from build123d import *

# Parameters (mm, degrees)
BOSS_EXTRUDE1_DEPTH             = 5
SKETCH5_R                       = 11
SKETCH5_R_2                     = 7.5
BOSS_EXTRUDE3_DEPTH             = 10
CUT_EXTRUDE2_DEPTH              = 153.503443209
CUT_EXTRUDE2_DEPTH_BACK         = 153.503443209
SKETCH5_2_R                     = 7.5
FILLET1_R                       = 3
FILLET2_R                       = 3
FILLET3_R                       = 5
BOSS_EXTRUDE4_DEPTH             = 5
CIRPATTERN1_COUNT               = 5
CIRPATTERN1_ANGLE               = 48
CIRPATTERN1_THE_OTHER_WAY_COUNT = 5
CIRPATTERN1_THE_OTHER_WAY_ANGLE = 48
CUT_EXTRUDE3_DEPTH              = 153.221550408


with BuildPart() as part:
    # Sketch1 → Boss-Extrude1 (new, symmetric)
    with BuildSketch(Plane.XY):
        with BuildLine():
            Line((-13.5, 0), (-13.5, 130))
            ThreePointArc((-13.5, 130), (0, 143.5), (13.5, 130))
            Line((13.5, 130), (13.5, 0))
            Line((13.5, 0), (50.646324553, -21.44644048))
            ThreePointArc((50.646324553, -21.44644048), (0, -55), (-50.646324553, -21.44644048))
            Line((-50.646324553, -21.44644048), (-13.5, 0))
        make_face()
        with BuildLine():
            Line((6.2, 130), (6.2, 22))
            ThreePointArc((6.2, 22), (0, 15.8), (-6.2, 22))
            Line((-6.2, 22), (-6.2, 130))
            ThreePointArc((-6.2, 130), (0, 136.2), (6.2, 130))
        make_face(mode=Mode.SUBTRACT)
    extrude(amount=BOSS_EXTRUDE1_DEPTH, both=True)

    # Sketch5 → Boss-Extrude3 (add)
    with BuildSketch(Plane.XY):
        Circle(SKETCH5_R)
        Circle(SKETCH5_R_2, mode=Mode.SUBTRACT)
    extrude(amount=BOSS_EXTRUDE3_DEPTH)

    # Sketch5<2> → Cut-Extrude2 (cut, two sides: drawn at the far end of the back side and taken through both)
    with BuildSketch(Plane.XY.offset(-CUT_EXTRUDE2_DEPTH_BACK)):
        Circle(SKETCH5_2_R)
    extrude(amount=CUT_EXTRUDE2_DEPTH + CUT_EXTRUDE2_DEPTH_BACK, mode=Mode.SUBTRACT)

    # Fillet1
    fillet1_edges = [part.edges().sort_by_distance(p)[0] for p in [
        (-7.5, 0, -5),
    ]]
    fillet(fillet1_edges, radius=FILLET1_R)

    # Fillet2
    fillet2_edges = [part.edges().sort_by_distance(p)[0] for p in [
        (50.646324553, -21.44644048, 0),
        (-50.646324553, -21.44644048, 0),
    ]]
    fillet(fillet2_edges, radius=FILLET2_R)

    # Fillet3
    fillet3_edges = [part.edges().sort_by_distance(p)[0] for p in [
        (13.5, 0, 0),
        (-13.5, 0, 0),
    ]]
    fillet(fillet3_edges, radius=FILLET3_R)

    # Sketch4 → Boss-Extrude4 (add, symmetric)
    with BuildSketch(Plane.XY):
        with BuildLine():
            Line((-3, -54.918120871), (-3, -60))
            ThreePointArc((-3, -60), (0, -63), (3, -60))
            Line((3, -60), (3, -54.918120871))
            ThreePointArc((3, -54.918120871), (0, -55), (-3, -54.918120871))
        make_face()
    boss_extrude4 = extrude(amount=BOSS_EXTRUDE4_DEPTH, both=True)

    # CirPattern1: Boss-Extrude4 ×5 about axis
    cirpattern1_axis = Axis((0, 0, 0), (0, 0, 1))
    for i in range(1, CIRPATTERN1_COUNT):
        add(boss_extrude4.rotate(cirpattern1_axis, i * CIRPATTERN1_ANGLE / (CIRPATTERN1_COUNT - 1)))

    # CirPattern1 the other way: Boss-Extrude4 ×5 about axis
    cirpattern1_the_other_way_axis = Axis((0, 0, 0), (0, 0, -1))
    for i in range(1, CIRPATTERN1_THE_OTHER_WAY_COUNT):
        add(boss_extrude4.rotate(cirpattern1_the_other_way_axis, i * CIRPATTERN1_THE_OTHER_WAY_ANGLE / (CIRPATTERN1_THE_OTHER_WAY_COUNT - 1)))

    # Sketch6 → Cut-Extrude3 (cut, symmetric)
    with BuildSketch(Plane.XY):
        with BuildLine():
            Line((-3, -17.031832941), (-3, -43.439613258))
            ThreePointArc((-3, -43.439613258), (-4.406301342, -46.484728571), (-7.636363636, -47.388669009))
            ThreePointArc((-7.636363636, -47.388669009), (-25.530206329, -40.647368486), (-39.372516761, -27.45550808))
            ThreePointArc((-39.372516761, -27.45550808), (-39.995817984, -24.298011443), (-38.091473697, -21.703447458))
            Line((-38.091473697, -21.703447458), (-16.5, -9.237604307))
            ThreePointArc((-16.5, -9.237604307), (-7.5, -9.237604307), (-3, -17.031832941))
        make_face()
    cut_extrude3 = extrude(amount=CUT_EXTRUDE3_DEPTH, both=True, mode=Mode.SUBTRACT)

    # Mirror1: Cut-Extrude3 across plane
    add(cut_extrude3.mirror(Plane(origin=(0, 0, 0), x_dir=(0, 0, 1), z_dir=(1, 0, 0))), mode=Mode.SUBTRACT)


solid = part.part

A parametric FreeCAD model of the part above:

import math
import FreeCAD as App
import Part
import Sketcher
Q = App.Units.Quantity


def edges_at(feature, points):
    """Names of the edges that pass closest to the given points."""
    edges = feature.Shape.Edges
    near = lambda p: min(range(len(edges)), key=lambda i: edges[i].distToShape(Part.Vertex(*p))[0])
    return sorted({f"Edge{near(p) + 1}" for p in points})

doc = App.newDocument("Part")
body = doc.addObject("PartDesign::Body", "Body")

sketch1 = body.newObject("Sketcher::SketchObject", "Sketch")
sketch1.AttachmentSupport = (doc.getObject("XY_Plane"), [""])
sketch1.MapMode = "FlatFace"
sketch1.addGeometry([
    Part.LineSegment(App.Vector(-14, 130, 0), App.Vector(-14, 0, 0)),
    Part.LineSegment(App.Vector(-14, 0, 0), App.Vector(-51, -21, 0)),
    Part.ArcOfCircle(Part.Circle(App.Vector(0, 0, 0), App.Vector(0, 0, 1), 55), math.radians(-157), math.radians(-23)),
    Part.LineSegment(App.Vector(51, -21, 0), App.Vector(14, 0, 0)),
    Part.LineSegment(App.Vector(14, 0, 0), App.Vector(14, 130, 0)),
    Part.ArcOfCircle(Part.Circle(App.Vector(0, 130, 0), App.Vector(0, 0, 1), 14), math.radians(0), math.radians(180)),
    Part.LineSegment(App.Vector(6, 130, 0), App.Vector(6, 22, 0)),
    Part.ArcOfCircle(Part.Circle(App.Vector(0, 22, 0), App.Vector(0, 0, 1), 6), math.radians(180), math.radians(360)),
    Part.LineSegment(App.Vector(-6, 22, 0), App.Vector(-6, 130, 0)),
    Part.ArcOfCircle(Part.Circle(App.Vector(0, 130, 0), App.Vector(0, 0, 1), 6), math.radians(0), math.radians(180)),
], False)
sketch1.addConstraint([
    Sketcher.Constraint("Coincident", 0, 2, 1, 1),
    Sketcher.Constraint("Coincident", 1, 2, 2, 1),
    Sketcher.Constraint("Coincident", 2, 2, 3, 1),
    Sketcher.Constraint("Coincident", 3, 2, 4, 1),
    Sketcher.Constraint("Tangent", 4, 2, 5, 1),
    Sketcher.Constraint("Tangent", 5, 2, 0, 1),
    Sketcher.Constraint("Tangent", 6, 2, 7, 2),
    Sketcher.Constraint("Tangent", 7, 1, 8, 1),
    Sketcher.Constraint("Tangent", 8, 2, 9, 2),
    Sketcher.Constraint("Tangent", 9, 1, 6, 1),
    Sketcher.Constraint("Vertical", 0),
    Sketcher.Constraint("Vertical", 4),
    Sketcher.Constraint("Vertical", 6),
    Sketcher.Constraint("Vertical", 8),
    Sketcher.Constraint("Coincident", 2, 3, -1, 1),
    Sketcher.Constraint("Coincident", 9, 3, 5, 3),
    Sketcher.Constraint("Symmetric", 0, 2, 3, 2, -1, 1),
    Sketcher.Constraint("PointOnObject", 0, 2, -1),
    Sketcher.Constraint("Horizontal", 1, 2, 2, 2),
    Sketcher.Constraint("Radius", 2, 55.0),
    Sketcher.Constraint("Radius", 5, 13.5),
    Sketcher.Constraint("Radius", 7, 6.2),
    Sketcher.Constraint("DistanceY", 0, 2, 0, 1, 130.0),
    Sketcher.Constraint("DistanceY", 6, 2, 6, 1, 108.0),
    Sketcher.Constraint("Angle", 1, Q("-150 deg")),
])
pad1 = body.newObject("PartDesign::Pad", "Pad")
pad1.Profile = sketch1
pad1.Length = 10
pad1.Midplane = True

sketch2 = body.newObject("Sketcher::SketchObject", "Sketch001")
sketch2.AttachmentSupport = (doc.getObject("XY_Plane"), [""])
sketch2.MapMode = "FlatFace"
sketch2.addGeometry([
    Part.Circle(App.Vector(0, 0, 0), App.Vector(0, 0, 1), 11),
    Part.Circle(App.Vector(0, 0, 0), App.Vector(0, 0, 1), 8),
], False)
sketch2.addConstraint([
    Sketcher.Constraint("Coincident", 0, 3, -1, 1),
    Sketcher.Constraint("Coincident", 1, 3, -1, 1),
    Sketcher.Constraint("Diameter", 0, 22.0),
    Sketcher.Constraint("Diameter", 1, 15.0),
])
pad2 = body.newObject("PartDesign::Pad", "Pad001")
pad2.Profile = sketch2
pad2.Length = 10

sketch3 = body.newObject("Sketcher::SketchObject", "Sketch002")
sketch3.AttachmentSupport = (doc.getObject("XY_Plane"), [""])
sketch3.MapMode = "FlatFace"
sketch3.addGeometry(Part.Circle(App.Vector(0, 0, 0), App.Vector(0, 0, 1), 8), False)
sketch3.addConstraint([
    Sketcher.Constraint("Coincident", 0, 3, -1, 1),
    Sketcher.Constraint("Diameter", 0, 15.0),
])
pocket1 = body.newObject("PartDesign::Pocket", "Pocket")
pocket1.Profile = sketch3
pocket1.Type = "ThroughAll"
pocket1.Midplane = True
doc.recompute()

fillet = body.newObject("PartDesign::Fillet", "Fillet")
fillet.Base = (pocket1, edges_at(pocket1, [(-7.5, 0, -5)]))
fillet.Radius = 3
doc.recompute()

fillet2 = body.newObject("PartDesign::Fillet", "Fillet001")
fillet2.Base = (fillet, edges_at(fillet, [(50.646, -21.446, 0), (-50.646, -21.446, 0)]))
fillet2.Radius = 3
doc.recompute()

fillet3 = body.newObject("PartDesign::Fillet", "Fillet002")
fillet3.Base = (fillet2, edges_at(fillet2, [(13.5, 0, 0), (-13.5, 0, 0)]))
fillet3.Radius = 5

sketch4 = body.newObject("Sketcher::SketchObject", "Sketch003")
sketch4.AttachmentSupport = (doc.getObject("XY_Plane"), [""])
sketch4.MapMode = "FlatFace"
sketch4.addGeometry([
    Part.LineSegment(App.Vector(-3, -54.9, 0), App.Vector(-3, -60, 0)),
    Part.ArcOfCircle(Part.Circle(App.Vector(0, -60, 0), App.Vector(0, 0, 1), 3), math.radians(180), math.radians(360)),
    Part.LineSegment(App.Vector(3, -60, 0), App.Vector(3, -54.9, 0)),
    Part.ArcOfCircle(Part.Circle(App.Vector(0, 0, 0), App.Vector(0, 0, 1), 55), math.radians(-93.13), math.radians(-86.87)),
], False)
sketch4.addConstraint([
    Sketcher.Constraint("Tangent", 0, 2, 1, 1),
    Sketcher.Constraint("Tangent", 1, 2, 2, 1),
    Sketcher.Constraint("Coincident", 2, 2, 3, 2),
    Sketcher.Constraint("Coincident", 3, 1, 0, 1),
    Sketcher.Constraint("Vertical", 0),
    Sketcher.Constraint("Vertical", 2),
    Sketcher.Constraint("Coincident", 3, 3, -1, 1),
    Sketcher.Constraint("PointOnObject", 1, 3, -2),
    Sketcher.Constraint("Radius", 1, 3.0),
    Sketcher.Constraint("Radius", 3, 55.0),
    Sketcher.Constraint("DistanceY", 1, 3, -1, 1, 60.0),
])
pad3 = body.newObject("PartDesign::Pad", "Pad002")
pad3.Profile = sketch4
pad3.Length = 10
pad3.Midplane = True
doc.recompute()

polarpattern = body.newObject("PartDesign::PolarPattern", "PolarPattern")
polarpattern.Originals = [pad3]
polarpattern.Axis = (doc.getObject("Z_Axis"), [""])
polarpattern.Angle = 48
polarpattern.Occurrences = 5
body.Tip = polarpattern
doc.recompute()

polarpattern2 = body.newObject("PartDesign::PolarPattern", "PolarPattern001")
polarpattern2.Originals = [pad3]
polarpattern2.Axis = (doc.getObject("Z_Axis"), [""])
polarpattern2.Angle = 48
polarpattern2.Occurrences = 5
polarpattern2.Reversed = True
body.Tip = polarpattern2

sketch5 = body.newObject("Sketcher::SketchObject", "Sketch004")
sketch5.AttachmentSupport = (doc.getObject("XY_Plane"), [""])
sketch5.MapMode = "FlatFace"
sketch5.addGeometry([
    Part.LineSegment(App.Vector(-3, -43.4, 0), App.Vector(-3, -17, 0)),
    Part.ArcOfCircle(Part.Circle(App.Vector(-12, -17, 0), App.Vector(0, 0, 1), 9), math.radians(0), math.radians(120)),
    Part.LineSegment(App.Vector(-16.5, -9.2, 0), App.Vector(-38.1, -21.7, 0)),
    Part.ArcOfCircle(Part.Circle(App.Vector(-36.1, -25.2, 0), App.Vector(0, 0, 1), 4), math.radians(120), math.radians(215)),
    Part.ArcOfCircle(Part.Circle(App.Vector(0, 0, 0), App.Vector(0, 0, 1), 48), math.radians(-145), math.radians(-99)),
    Part.ArcOfCircle(Part.Circle(App.Vector(-7, -43.4, 0), App.Vector(0, 0, 1), 4), math.radians(-99), math.radians(0)),
], False)
sketch5.addConstraint([
    Sketcher.Constraint("Tangent", 0, 2, 1, 1),
    Sketcher.Constraint("Tangent", 1, 2, 2, 1),
    Sketcher.Constraint("Tangent", 2, 2, 3, 1),
    Sketcher.Constraint("Tangent", 3, 2, 4, 1),
    Sketcher.Constraint("Tangent", 4, 2, 5, 1),
    Sketcher.Constraint("Tangent", 5, 2, 0, 1),
    Sketcher.Constraint("Vertical", 0),
    Sketcher.Constraint("Coincident", 4, 3, -1, 1),
    Sketcher.Constraint("Equal", 3, 5),
    Sketcher.Constraint("Radius", 1, 9.0),
    Sketcher.Constraint("Radius", 3, 4.0),
    Sketcher.Constraint("Radius", 4, 48.0),
    Sketcher.Constraint("Angle", 2, Q("-150 deg")),
    Sketcher.Constraint("DistanceX", 1, 3, -1, 1, 12.0),
    Sketcher.Constraint("DistanceY", 0, 1, 0, 2, 26.40778),
])
pocket2 = body.newObject("PartDesign::Pocket", "Pocket001")
pocket2.Profile = sketch5
pocket2.Length = 306.443101
pocket2.Midplane = True
doc.recompute()

mirrored = body.newObject("PartDesign::Mirrored", "Mirrored")
mirrored.Originals = [pocket2]
mirrored.MirrorPlane = (doc.getObject("YZ_Plane"), [""])
body.Tip = mirrored

doc.recompute()
